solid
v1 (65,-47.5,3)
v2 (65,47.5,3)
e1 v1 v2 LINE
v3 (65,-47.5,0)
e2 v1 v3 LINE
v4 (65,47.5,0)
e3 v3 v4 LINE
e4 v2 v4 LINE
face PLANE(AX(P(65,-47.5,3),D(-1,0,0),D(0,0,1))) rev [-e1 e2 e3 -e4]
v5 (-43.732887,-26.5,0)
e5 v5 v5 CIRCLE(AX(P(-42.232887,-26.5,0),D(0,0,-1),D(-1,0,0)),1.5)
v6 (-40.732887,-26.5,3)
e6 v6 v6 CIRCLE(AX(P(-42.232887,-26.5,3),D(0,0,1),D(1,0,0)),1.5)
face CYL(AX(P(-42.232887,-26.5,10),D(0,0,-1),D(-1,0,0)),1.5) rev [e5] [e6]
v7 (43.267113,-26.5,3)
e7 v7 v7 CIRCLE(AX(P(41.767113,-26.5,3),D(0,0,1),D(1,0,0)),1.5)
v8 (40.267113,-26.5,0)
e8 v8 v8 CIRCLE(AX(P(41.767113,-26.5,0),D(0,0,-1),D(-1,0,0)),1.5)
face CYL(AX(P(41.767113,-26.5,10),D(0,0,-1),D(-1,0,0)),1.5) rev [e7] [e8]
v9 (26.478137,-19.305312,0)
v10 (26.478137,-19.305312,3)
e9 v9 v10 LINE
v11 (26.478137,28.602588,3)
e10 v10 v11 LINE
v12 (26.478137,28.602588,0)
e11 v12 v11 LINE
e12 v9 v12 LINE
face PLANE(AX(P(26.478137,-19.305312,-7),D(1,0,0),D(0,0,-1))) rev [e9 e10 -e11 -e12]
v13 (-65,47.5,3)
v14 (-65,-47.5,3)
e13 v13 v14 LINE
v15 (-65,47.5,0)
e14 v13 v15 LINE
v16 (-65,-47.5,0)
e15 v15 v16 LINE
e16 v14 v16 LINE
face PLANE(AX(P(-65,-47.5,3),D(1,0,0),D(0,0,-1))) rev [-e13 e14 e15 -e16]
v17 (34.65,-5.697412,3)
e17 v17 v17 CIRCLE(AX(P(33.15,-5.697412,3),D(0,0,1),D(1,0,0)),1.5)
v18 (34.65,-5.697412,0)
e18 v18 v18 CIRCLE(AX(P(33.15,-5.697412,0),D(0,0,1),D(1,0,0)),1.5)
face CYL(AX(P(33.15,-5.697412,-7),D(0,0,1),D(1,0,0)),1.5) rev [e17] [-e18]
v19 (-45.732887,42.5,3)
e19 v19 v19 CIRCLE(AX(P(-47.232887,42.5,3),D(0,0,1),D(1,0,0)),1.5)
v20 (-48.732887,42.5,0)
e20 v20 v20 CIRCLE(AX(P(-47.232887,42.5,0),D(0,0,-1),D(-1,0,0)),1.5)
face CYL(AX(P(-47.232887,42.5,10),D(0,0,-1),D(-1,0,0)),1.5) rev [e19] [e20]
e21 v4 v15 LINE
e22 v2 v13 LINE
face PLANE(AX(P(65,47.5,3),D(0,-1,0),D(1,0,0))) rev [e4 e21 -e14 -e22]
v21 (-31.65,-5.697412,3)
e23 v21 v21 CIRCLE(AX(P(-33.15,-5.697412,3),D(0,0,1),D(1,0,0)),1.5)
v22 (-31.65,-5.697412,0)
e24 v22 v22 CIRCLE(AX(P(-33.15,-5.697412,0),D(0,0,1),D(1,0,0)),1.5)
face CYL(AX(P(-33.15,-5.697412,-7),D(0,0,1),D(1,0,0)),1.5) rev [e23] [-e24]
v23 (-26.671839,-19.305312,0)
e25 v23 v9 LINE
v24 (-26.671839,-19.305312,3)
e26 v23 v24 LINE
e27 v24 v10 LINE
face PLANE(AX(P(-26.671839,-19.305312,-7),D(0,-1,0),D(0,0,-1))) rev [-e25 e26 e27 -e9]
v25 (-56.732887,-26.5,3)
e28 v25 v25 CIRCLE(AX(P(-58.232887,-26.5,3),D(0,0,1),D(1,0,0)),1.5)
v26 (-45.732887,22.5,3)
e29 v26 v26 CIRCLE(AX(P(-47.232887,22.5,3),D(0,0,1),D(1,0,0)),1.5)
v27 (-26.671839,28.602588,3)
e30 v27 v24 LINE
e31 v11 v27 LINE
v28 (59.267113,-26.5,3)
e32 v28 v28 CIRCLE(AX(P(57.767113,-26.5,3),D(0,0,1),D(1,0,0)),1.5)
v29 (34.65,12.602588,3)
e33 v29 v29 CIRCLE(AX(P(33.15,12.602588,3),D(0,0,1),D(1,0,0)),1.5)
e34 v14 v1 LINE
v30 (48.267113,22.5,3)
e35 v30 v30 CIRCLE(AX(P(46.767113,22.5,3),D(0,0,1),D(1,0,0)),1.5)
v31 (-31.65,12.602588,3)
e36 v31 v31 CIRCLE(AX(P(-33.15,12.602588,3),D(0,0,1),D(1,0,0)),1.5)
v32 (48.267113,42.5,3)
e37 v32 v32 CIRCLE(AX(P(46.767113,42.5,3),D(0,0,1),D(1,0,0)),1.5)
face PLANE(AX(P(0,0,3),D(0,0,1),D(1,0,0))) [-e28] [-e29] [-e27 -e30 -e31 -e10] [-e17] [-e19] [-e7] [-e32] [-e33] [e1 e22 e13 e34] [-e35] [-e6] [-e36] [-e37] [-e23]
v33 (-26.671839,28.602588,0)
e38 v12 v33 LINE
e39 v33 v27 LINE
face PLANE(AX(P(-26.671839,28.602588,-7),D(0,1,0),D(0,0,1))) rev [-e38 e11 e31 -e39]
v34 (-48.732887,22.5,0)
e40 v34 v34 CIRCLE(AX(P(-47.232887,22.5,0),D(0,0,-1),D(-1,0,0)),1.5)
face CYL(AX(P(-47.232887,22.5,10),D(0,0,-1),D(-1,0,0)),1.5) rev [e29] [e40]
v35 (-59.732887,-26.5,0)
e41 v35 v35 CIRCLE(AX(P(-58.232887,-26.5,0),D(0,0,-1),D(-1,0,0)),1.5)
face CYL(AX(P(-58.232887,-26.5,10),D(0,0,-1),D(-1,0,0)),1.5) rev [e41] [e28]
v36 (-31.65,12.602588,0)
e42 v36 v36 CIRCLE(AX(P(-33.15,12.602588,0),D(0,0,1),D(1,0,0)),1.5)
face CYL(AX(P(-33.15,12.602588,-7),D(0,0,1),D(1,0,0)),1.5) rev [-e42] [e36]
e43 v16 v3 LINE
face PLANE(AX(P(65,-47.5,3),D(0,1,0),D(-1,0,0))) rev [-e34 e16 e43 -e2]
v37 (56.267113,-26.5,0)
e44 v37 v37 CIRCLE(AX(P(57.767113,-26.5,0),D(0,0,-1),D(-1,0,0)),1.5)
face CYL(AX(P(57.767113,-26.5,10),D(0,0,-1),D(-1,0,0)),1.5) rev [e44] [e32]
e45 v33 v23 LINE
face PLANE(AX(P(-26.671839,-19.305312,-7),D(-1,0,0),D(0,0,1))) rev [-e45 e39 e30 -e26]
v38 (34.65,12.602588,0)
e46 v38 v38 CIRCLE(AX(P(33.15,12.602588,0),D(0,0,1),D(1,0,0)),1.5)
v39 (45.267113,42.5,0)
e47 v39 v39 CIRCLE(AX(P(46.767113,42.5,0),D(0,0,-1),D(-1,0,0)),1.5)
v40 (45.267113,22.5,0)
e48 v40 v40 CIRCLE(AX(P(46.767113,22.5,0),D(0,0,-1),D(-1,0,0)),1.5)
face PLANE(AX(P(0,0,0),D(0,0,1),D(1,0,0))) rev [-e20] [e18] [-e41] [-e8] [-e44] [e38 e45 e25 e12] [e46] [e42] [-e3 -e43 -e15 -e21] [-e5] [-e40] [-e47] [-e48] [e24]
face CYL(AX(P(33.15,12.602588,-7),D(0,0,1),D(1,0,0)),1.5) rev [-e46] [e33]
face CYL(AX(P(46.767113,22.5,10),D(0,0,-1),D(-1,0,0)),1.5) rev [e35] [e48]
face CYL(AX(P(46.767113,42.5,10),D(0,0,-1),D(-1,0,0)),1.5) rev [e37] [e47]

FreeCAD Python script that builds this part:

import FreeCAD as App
import Part
import Sketcher
from FreeCAD import Vector
Q = App.Units.Quantity

doc = App.newDocument("Part")
params = doc.addObject("Spreadsheet::Sheet", "Params")
for row, (alias, value) in enumerate([
    ("sketch1_width", "130 mm"),
    ("sketch1_height", "95 mm"),
    ("pad1_length", "3 mm"),
    ("sketch2_diameter", "3 mm"),
    ("pocket1_length", "10 mm"),
    ("sketch3_diameter", "3 mm"),
    ("pocket2_length", "10 mm"),
    ("sketch4_diameter", "25.5 mm"),
    ("pocket3_length", "10 mm"),
    ("sketch5_diameter", "2.5 mm"),
    ("pocket4_length", "10 mm"),
    ("sketch6_diameter", "3 mm"),
    ("pocket5_length", "10 mm"),
], start=1):
    params.set(f"A{row}", alias)
    params.set(f"B{row}", "=" + value)
    params.setAlias(f"B{row}", alias)

body = doc.addObject("PartDesign::Body", "Body")

# Sketch on XY plane
sketch1 = body.newObject("Sketcher::SketchObject", "Sketch")
sketch1.AttachmentSupport = (doc.getObject("XY_Plane"), [""])
sketch1.MapMode = "FlatFace"
sketch1.addGeometry([
    Part.LineSegment(Vector(-65, 48, 0), Vector(-65, -48, 0)),
    Part.LineSegment(Vector(-65, -48, 0), Vector(65, -48, 0)),
    Part.LineSegment(Vector(65, -48, 0), Vector(65, 48, 0)),
    Part.LineSegment(Vector(65, 48, 0), Vector(-65, 48, 0)),
], False)
sketch1.addConstraint([
    Sketcher.Constraint("Coincident", 0, 2, 1, 1),
    Sketcher.Constraint("Coincident", 1, 2, 2, 1),
    Sketcher.Constraint("Coincident", 2, 2, 3, 1),
    Sketcher.Constraint("Coincident", 3, 2, 0, 1),
    Sketcher.Constraint("Vertical", 0),
    Sketcher.Constraint("Horizontal", 1),
    Sketcher.Constraint("Vertical", 2),
    Sketcher.Constraint("Horizontal", 3),
    Sketcher.Constraint("Symmetric", 0, 2, 2, 2, -1, 1),
    Sketcher.Constraint("DistanceX", 1, 1, 1, 2, Q("130 mm")),
    Sketcher.Constraint("DistanceY", 0, 2, 0, 1, Q("95 mm")),
])
sketch1.setExpression("Constraints[9]", "Params.sketch1_width")
sketch1.setExpression("Constraints[10]", "Params.sketch1_height")
pad1 = body.newObject("PartDesign::Pad", "Pad")
pad1.Profile = sketch1
pad1.setExpression("Length", "Params.pad1_length")

# Sketch on XY plane
sketch2 = body.newObject("Sketcher::SketchObject", "Sketch001")
sketch2.AttachmentSupport = (doc.getObject("XY_Plane"), [""])
sketch2.MapMode = "FlatFace"
sketch2.addGeometry([
    Part.Circle(Vector(57.8, -26.5, 0), Vector(0, 0, 1), 1.5),
    Part.Circle(Vector(41.8, -26.5, 0), Vector(0, 0, 1), 1.5),
    Part.Circle(Vector(-42.2, -26.5, 0), Vector(0, 0, 1), 1.5),
    Part.Circle(Vector(-58.2, -26.5, 0), Vector(0, 0, 1), 1.5),
], False)
sketch2.addConstraint([
    Sketcher.Constraint("Equal", 0, 1),
    Sketcher.Constraint("Equal", 1, 2),
    Sketcher.Constraint("Equal", 2, 3),
    Sketcher.Constraint("Horizontal", 0, 3, 1, 3),
    Sketcher.Constraint("Horizontal", 1, 3, 2, 3),
    Sketcher.Constraint("Horizontal", 2, 3, 3, 3),
    Sketcher.Constraint("Diameter", 0, Q("3 mm")),
    Sketcher.Constraint("DistanceX", 1, 3, 0, 3, Q("16 mm")),
    Sketcher.Constraint("DistanceX", 2, 3, 1, 3, Q("84 mm")),
    Sketcher.Constraint("DistanceX", 3, 3, 2, 3, Q("16 mm")),
    Sketcher.Constraint("DistanceY", 0, 3, -1, 1, Q("26.5 mm")),
    Sketcher.Constraint("DistanceX", -1, 1, 0, 3, Q("57.767113 mm")),
])
sketch2.setExpression("Constraints[6]", "Params.sketch2_diameter")
pocket1 = body.newObject("PartDesign::Pocket", "Pocket")
pocket1.Profile = sketch2
pocket1.setExpression("Length", "Params.pocket1_length")
pocket1.Reversed = True

# Sketch on XY plane
sketch3 = body.newObject("Sketcher::SketchObject", "Sketch002")
sketch3.AttachmentSupport = (doc.getObject("XY_Plane"), [""])
sketch3.MapMode = "FlatFace"
sketch3.addGeometry([
    Part.Circle(Vector(46.8, 42.5, 0), Vector(0, 0, 1), 1.5),
    Part.Circle(Vector(46.8, 22.5, 0), Vector(0, 0, 1), 1.5),
    Part.Circle(Vector(-47.2, 42.5, 0), Vector(0, 0, 1), 1.5),
    Part.Circle(Vector(-47.2, 22.5, 0), Vector(0, 0, 1), 1.5),
], False)
sketch3.addConstraint([
    Sketcher.Constraint("Equal", 0, 1),
    Sketcher.Constraint("Equal", 1, 2),
    Sketcher.Constraint("Equal", 2, 3),
    Sketcher.Constraint("Horizontal", 0, 3, 2, 3),
    Sketcher.Constraint("Horizontal", 1, 3, 3, 3),
    Sketcher.Constraint("Vertical", 0, 3, 1, 3),
    Sketcher.Constraint("Vertical", 2, 3, 3, 3),
    Sketcher.Constraint("Diameter", 0, Q("3 mm")),
    Sketcher.Constraint("DistanceY", 1, 3, 0, 3, Q("20 mm")),
    Sketcher.Constraint("DistanceX", 2, 3, 0, 3, Q("94 mm")),
    Sketcher.Constraint("DistanceY", -1, 1, 0, 3, Q("42.5 mm")),
    Sketcher.Constraint("DistanceX", -1, 1, 0, 3, Q("46.767113 mm")),
])
sketch3.setExpression("Constraints[7]", "Params.sketch3_diameter")
pocket2 = body.newObject("PartDesign::Pocket", "Pocket001")
pocket2.Profile = sketch3
pocket2.setExpression("Length", "Params.pocket2_length")
pocket2.Reversed = True

# Sketch on XY plane
sketch4 = body.newObject("Sketcher::SketchObject", "Sketch003")
sketch4.AttachmentSupport = (doc.getObject("XY_Plane"), [""])
sketch4.MapMode = "FlatFace"
sketch4.addGeometry(Part.Circle(Vector(0, 7, 0), Vector(0, 0, 1), 13), False)
sketch4.addConstraint([
    Sketcher.Constraint("PointOnObject", 0, 3, -2),
    Sketcher.Constraint("Diameter", 0, Q("25.5 mm")),
    Sketcher.Constraint("DistanceY", -1, 1, 0, 3, Q("7.452588 mm")),
])
sketch4.setExpression("Constraints[1]", "Params.sketch4_diameter")
pocket3 = body.newObject("PartDesign::Pocket", "Pocket002")
pocket3.Profile = sketch4
pocket3.setExpression("Length", "Params.pocket3_length")
pocket3.Reversed = True

# Sketch on XY plane
sketch5 = body.newObject("Sketcher::SketchObject", "Sketch004")
sketch5.AttachmentSupport = (doc.getObject("XY_Plane"), [""])
sketch5.MapMode = "FlatFace"
sketch5.addGeometry([
    Part.Circle(Vector(15.5, 23, 0), Vector(0, 0, 1), 1.2),
    Part.Circle(Vector(-15.5, 23, 0), Vector(0, 0, 1), 1.2),
    Part.Circle(Vector(-15.5, -8, 0), Vector(0, 0, 1), 1.2),
    Part.Circle(Vector(15.5, -8, 0), Vector(0, 0, 1), 1.2),
], False)
sketch5.addConstraint([
    Sketcher.Constraint("Equal", 0, 1),
    Sketcher.Constraint("Equal", 1, 2),
    Sketcher.Constraint("Equal", 2, 3),
    Sketcher.Constraint("Symmetric", 0, 3, 1, 3, -2),
    Sketcher.Constraint("Symmetric", 2, 3, 3, 3, -2),
    Sketcher.Constraint("Vertical", 1, 3, 2, 3),
    Sketcher.Constraint("Diameter", 0, Q("2.5 mm")),
    Sketcher.Constraint("DistanceX", 1, 3, 0, 3, Q("31 mm")),
    Sketcher.Constraint("DistanceY", 2, 3, 1, 3, Q("31 mm")),
    Sketcher.Constraint("DistanceY", -1, 1, 0, 3, Q("22.952588 mm")),
])
sketch5.setExpression("Constraints[6]", "Params.sketch5_diameter")
pocket4 = body.newObject("PartDesign::Pocket", "Pocket003")
pocket4.Profile = sketch5
pocket4.setExpression("Length", "Params.pocket4_length")
pocket4.Reversed = True

# Sketch on XY plane
sketch6 = body.newObject("Sketcher::SketchObject", "Sketch005")
sketch6.AttachmentSupport = (doc.getObject("XY_Plane"), [""])
sketch6.MapMode = "FlatFace"
sketch6.AttachmentOffset = App.Placement(Vector(0, 0, 3), App.Rotation())
sketch6.addGeometry([
    Part.Circle(Vector(-33.1, 12.6, 0), Vector(0, 0, 1), 1.5),  # 0
    Part.Circle(Vector(-33.1, -5.7, 0), Vector(0, 0, 1), 1.5),  # 1
    Part.Circle(Vector(33.1, 12.6, 0), Vector(0, 0, 1), 1.5),  # 2
    Part.Circle(Vector(33.1, -5.7, 0), Vector(0, 0, 1), 1.5),  # 3
    Part.LineSegment(Vector(-26.7, 28.6, 0), Vector(-26.7, -19.3, 0)),  # 4
    Part.LineSegment(Vector(-26.7, -19.3, 0), Vector(26.5, -19.3, 0)),  # 5
    Part.LineSegment(Vector(26.5, -19.3, 0), Vector(26.5, 28.6, 0)),  # 6
    Part.LineSegment(Vector(26.5, 28.6, 0), Vector(-26.7, 28.6, 0)),  # 7
], False)
sketch6.addConstraint([
    Sketcher.Constraint("Coincident", 4, 2, 5, 1),
    Sketcher.Constraint("Coincident", 5, 2, 6, 1),
    Sketcher.Constraint("Coincident", 6, 2, 7, 1),
    Sketcher.Constraint("Coincident", 7, 2, 4, 1),
    Sketcher.Constraint("Vertical", 4),
    Sketcher.Constraint("Horizontal", 5),
    Sketcher.Constraint("Vertical", 6),
    Sketcher.Constraint("Horizontal", 7),
    Sketcher.Constraint("Equal", 0, 1),
    Sketcher.Constraint("Equal", 1, 2),
    Sketcher.Constraint("Equal", 2, 3),
    Sketcher.Constraint("Symmetric", 0, 3, 2, 3, -2),
    Sketcher.Constraint("Symmetric", 1, 3, 3, 3, -2),
    Sketcher.Constraint("Vertical", 0, 3, 1, 3),
    Sketcher.Constraint("Diameter", 0, Q("3 mm")),
    Sketcher.Constraint("DistanceY", 2, 3, 6, 2, Q("16 mm")),
    Sketcher.Constraint("DistanceY", 1, 3, 0, 3, Q("18.3 mm")),
    Sketcher.Constraint("DistanceX", 0, 3, 2, 3, Q("66.3 mm")),
    Sketcher.Constraint("DistanceY", 4, 2, 4, 1, Q("47.907899 mm")),
    Sketcher.Constraint("DistanceX", 5, 1, 5, 2, Q("53.149976 mm")),
    Sketcher.Constraint("DistanceX", 4, 2, -1, 1, Q("26.671839 mm")),
    Sketcher.Constraint("DistanceY", 4, 2, -1, 1, Q("19.305312 mm")),
])
sketch6.setExpression("Constraints[14]", "Params.sketch6_diameter")
pocket5 = body.newObject("PartDesign::Pocket", "Pocket004")
pocket5.Profile = sketch6
pocket5.setExpression("Length", "Params.pocket5_length")

doc.recompute()
